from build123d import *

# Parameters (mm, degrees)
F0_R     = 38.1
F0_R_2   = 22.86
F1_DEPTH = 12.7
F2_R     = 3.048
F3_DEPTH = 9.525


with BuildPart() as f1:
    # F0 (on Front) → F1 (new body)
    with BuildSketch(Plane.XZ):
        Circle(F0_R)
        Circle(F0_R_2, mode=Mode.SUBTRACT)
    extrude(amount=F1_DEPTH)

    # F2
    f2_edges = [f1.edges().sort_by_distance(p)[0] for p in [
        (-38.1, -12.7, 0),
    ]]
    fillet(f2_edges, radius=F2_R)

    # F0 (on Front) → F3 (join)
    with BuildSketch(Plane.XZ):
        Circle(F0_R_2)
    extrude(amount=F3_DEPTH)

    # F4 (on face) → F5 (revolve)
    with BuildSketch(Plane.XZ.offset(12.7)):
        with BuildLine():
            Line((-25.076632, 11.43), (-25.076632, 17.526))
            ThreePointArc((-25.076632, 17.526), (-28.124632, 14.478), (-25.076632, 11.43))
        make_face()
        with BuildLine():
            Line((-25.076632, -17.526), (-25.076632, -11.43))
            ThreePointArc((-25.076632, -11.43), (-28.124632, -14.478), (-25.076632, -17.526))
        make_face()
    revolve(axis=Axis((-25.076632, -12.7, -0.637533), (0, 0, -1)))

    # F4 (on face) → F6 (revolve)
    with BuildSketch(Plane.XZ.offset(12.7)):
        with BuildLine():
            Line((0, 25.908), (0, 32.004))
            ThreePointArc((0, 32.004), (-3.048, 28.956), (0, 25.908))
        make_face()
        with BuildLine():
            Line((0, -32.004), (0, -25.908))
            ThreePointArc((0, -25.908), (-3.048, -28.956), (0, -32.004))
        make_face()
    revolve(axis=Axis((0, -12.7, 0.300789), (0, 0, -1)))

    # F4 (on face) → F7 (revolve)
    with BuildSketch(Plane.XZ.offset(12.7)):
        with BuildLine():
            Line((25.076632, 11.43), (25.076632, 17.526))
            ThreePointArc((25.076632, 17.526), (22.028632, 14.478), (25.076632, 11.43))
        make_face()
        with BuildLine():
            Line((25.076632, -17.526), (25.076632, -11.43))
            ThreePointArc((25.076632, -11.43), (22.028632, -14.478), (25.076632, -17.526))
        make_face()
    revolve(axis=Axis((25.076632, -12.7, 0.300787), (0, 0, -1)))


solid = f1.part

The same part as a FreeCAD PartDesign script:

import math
import FreeCAD as App
import Part
import Sketcher
from FreeCAD import Vector
Q = App.Units.Quantity


def edges_at(feature, points):
    """Names of the edges that pass closest to the given points."""
    edges = feature.Shape.Edges
    near = lambda p: min(range(len(edges)), key=lambda i: edges[i].distToShape(Part.Vertex(*p))[0])
    return sorted({f"Edge{near(p) + 1}" for p in points})

doc = App.newDocument("Part")
body = doc.addObject("PartDesign::Body", "Body")

sketch1 = body.newObject("Sketcher::SketchObject", "Sketch")
sketch1.AttachmentSupport = (doc.getObject("XZ_Plane"), [""])
sketch1.MapMode = "FlatFace"
sketch1.addGeometry([
    Part.Circle(Vector(0, 0, 0), Vector(0, 0, 1), 38),
    Part.Circle(Vector(0, 0, 0), Vector(0, 0, 1), 23),
], False)
sketch1.addConstraint([
    Sketcher.Constraint("Coincident", 0, 3, -1, 1),
    Sketcher.Constraint("Coincident", 1, 3, -1, 1),
    Sketcher.Constraint("Diameter", 0, Q("3 in")),
    Sketcher.Constraint("Diameter", 1, Q("1.8 in")),
])
pad1 = body.newObject("PartDesign::Pad", "Pad")
pad1.Profile = sketch1
pad1.Length = Q("0.5 in")
doc.recompute()

fillet = body.newObject("PartDesign::Fillet", "Fillet")
fillet.Base = (pad1, edges_at(pad1, [(-38.1, -12.7, 0)]))
fillet.Radius = Q("0.12 in")

sketch2 = body.newObject("Sketcher::SketchObject", "Sketch001")
sketch2.AttachmentSupport = (doc.getObject("XZ_Plane"), [""])
sketch2.MapMode = "FlatFace"
sketch2.addGeometry(Part.Circle(Vector(0, 0, 0), Vector(0, 0, 1), 23), False)
sketch2.addConstraint([
    Sketcher.Constraint("Coincident", 0, 3, -1, 1),
    Sketcher.Constraint("Diameter", 0, Q("1.8 in")),
])
pad2 = body.newObject("PartDesign::Pad", "Pad001")
pad2.Profile = sketch2
pad2.Length = Q("0.375 in")

sketch3 = body.newObject("Sketcher::SketchObject", "Sketch002")
sketch3.AttachmentSupport = (doc.getObject("XZ_Plane"), [""])
sketch3.MapMode = "FlatFace"
sketch3.AttachmentOffset = App.Placement(Vector(0, 0, 0.5 * 25.4), App.Rotation())
sketch3.addGeometry([
    Part.LineSegment(Vector(-25.1, 11.4, 0), Vector(-25.1, 17.5, 0)),
    Part.ArcOfCircle(Part.Circle(Vector(-25.1, 14.5, 0), Vector(0, 0, 1), 3), math.radians(90), math.radians(270)),
    Part.LineSegment(Vector(-25.1, -17.5, 0), Vector(-25.1, -11.4, 0)),
    Part.ArcOfCircle(Part.Circle(Vector(-25.1, -14.5, 0), Vector(0, 0, 1), 3), math.radians(90), math.radians(270)),
], False)
sketch3.addGeometry(Part.LineSegment(Vector(-25.1, 17.5, 0), Vector(-25.1, -17.5, 0)), True)
sketch3.addConstraint([
    Sketcher.Constraint("Coincident", 0, 1, 1, 2),
    Sketcher.Constraint("Coincident", 1, 1, 0, 2),
    Sketcher.Constraint("Coincident", 2, 1, 3, 2),
    Sketcher.Constraint("Coincident", 3, 1, 2, 2),
    Sketcher.Constraint("Vertical", 0),
    Sketcher.Constraint("Vertical", 2),
    Sketcher.Constraint("Vertical", 4),
    Sketcher.Constraint("Coincident", 4, 1, 1, 1),
    Sketcher.Constraint("Coincident", 4, 2, 2, 1),
    Sketcher.Constraint("Equal", 1, 3),
    Sketcher.Constraint("Symmetric", 1, 3, 3, 3, -1),
    Sketcher.Constraint("Vertical", 3, 3, 0, 1),
    Sketcher.Constraint("Radius", 1, Q("0.12 in")),
    Sketcher.Constraint("DistanceY", 4, 2, 4, 1, Q("1.38 in")),
    Sketcher.Constraint("DistanceX", 1, 3, -1, 1, Q("25.076632 mm")),
])
revolution = body.newObject("PartDesign::Revolution", "Revolution")
revolution.Profile = sketch3
revolution.ReferenceAxis = (sketch3, ["Axis0"])
revolution.Angle = 360

sketch4 = body.newObject("Sketcher::SketchObject", "Sketch003")
sketch4.AttachmentSupport = (doc.getObject("XZ_Plane"), [""])
sketch4.MapMode = "FlatFace"
sketch4.AttachmentOffset = App.Placement(Vector(0, 0, 0.5 * 25.4), App.Rotation())
sketch4.addGeometry([
    Part.LineSegment(Vector(0, 25.9, 0), Vector(0, 32, 0)),
    Part.ArcOfCircle(Part.Circle(Vector(0, 29, 0), Vector(0, 0, 1), 3), math.radians(90), math.radians(270)),
    Part.LineSegment(Vector(0, -32, 0), Vector(0, -25.9, 0)),
    Part.ArcOfCircle(Part.Circle(Vector(0, -29, 0), Vector(0, 0, 1), 3), math.radians(90), math.radians(270)),
], False)
sketch4.addConstraint([
    Sketcher.Constraint("Coincident", 0, 1, 1, 2),
    Sketcher.Constraint("Coincident", 1, 1, 0, 2),
    Sketcher.Constraint("Coincident", 2, 1, 3, 2),
    Sketcher.Constraint("Coincident", 3, 1, 2, 2),
    Sketcher.Constraint("Vertical", 0),
    Sketcher.Constraint("Vertical", 2),
    Sketcher.Constraint("Equal", 1, 3),
    Sketcher.Constraint("Symmetric", 1, 3, 3, 3, -1, 1),
    Sketcher.Constraint("PointOnObject", 1, 3, -2),
    Sketcher.Constraint("PointOnObject", 0, 1, -2),
    Sketcher.Constraint("PointOnObject", 2, 1, -2),
    Sketcher.Constraint("Radius", 1, Q("0.12 in")),
    Sketcher.Constraint("DistanceY", 3, 3, 1, 1, Q("2.4 in")),
])
revolution2 = body.newObject("PartDesign::Revolution", "Revolution001")
revolution2.Profile = sketch4
revolution2.ReferenceAxis = (sketch4, ["V_Axis"])
revolution2.Angle = 360

sketch5 = body.newObject("Sketcher::SketchObject", "Sketch004")
sketch5.AttachmentSupport = (doc.getObject("XZ_Plane"), [""])
sketch5.MapMode = "FlatFace"
sketch5.AttachmentOffset = App.Placement(Vector(0, 0, 0.5 * 25.4), App.Rotation())
sketch5.addGeometry([
    Part.LineSegment(Vector(25.1, 11.4, 0), Vector(25.1, 17.5, 0)),
    Part.ArcOfCircle(Part.Circle(Vector(25.1, 14.5, 0), Vector(0, 0, 1), 3), math.radians(90), math.radians(270)),
    Part.LineSegment(Vector(25.1, -17.5, 0), Vector(25.1, -11.4, 0)),
    Part.ArcOfCircle(Part.Circle(Vector(25.1, -14.5, 0), Vector(0, 0, 1), 3), math.radians(90), math.radians(270)),
], False)
sketch5.addGeometry(Part.LineSegment(Vector(25.1, 17.5, 0), Vector(25.1, -17.5, 0)), True)
sketch5.addConstraint([
    Sketcher.Constraint("Coincident", 0, 1, 1, 2),
    Sketcher.Constraint("Coincident", 1, 1, 0, 2),
    Sketcher.Constraint("Coincident", 2, 1, 3, 2),
    Sketcher.Constraint("Coincident", 3, 1, 2, 2),
    Sketcher.Constraint("Vertical", 0),
    Sketcher.Constraint("Vertical", 2),
    Sketcher.Constraint("Vertical", 4),
    Sketcher.Constraint("Coincident", 4, 1, 1, 1),
    Sketcher.Constraint("Coincident", 4, 2, 2, 1),
    Sketcher.Constraint("Equal", 1, 3),
    Sketcher.Constraint("Symmetric", 1, 3, 3, 3, -1),
    Sketcher.Constraint("Vertical", 3, 3, 0, 1),
    Sketcher.Constraint("Radius", 1, Q("0.12 in")),
    Sketcher.Constraint("DistanceY", 4, 2, 4, 1, Q("1.38 in")),
    Sketcher.Constraint("DistanceX", -1, 1, 1, 3, Q("25.076632 mm")),
])
revolution3 = body.newObject("PartDesign::Revolution", "Revolution002")
revolution3.Profile = sketch5
revolution3.ReferenceAxis = (sketch5, ["Axis0"])
revolution3.Angle = 360

doc.recompute()
